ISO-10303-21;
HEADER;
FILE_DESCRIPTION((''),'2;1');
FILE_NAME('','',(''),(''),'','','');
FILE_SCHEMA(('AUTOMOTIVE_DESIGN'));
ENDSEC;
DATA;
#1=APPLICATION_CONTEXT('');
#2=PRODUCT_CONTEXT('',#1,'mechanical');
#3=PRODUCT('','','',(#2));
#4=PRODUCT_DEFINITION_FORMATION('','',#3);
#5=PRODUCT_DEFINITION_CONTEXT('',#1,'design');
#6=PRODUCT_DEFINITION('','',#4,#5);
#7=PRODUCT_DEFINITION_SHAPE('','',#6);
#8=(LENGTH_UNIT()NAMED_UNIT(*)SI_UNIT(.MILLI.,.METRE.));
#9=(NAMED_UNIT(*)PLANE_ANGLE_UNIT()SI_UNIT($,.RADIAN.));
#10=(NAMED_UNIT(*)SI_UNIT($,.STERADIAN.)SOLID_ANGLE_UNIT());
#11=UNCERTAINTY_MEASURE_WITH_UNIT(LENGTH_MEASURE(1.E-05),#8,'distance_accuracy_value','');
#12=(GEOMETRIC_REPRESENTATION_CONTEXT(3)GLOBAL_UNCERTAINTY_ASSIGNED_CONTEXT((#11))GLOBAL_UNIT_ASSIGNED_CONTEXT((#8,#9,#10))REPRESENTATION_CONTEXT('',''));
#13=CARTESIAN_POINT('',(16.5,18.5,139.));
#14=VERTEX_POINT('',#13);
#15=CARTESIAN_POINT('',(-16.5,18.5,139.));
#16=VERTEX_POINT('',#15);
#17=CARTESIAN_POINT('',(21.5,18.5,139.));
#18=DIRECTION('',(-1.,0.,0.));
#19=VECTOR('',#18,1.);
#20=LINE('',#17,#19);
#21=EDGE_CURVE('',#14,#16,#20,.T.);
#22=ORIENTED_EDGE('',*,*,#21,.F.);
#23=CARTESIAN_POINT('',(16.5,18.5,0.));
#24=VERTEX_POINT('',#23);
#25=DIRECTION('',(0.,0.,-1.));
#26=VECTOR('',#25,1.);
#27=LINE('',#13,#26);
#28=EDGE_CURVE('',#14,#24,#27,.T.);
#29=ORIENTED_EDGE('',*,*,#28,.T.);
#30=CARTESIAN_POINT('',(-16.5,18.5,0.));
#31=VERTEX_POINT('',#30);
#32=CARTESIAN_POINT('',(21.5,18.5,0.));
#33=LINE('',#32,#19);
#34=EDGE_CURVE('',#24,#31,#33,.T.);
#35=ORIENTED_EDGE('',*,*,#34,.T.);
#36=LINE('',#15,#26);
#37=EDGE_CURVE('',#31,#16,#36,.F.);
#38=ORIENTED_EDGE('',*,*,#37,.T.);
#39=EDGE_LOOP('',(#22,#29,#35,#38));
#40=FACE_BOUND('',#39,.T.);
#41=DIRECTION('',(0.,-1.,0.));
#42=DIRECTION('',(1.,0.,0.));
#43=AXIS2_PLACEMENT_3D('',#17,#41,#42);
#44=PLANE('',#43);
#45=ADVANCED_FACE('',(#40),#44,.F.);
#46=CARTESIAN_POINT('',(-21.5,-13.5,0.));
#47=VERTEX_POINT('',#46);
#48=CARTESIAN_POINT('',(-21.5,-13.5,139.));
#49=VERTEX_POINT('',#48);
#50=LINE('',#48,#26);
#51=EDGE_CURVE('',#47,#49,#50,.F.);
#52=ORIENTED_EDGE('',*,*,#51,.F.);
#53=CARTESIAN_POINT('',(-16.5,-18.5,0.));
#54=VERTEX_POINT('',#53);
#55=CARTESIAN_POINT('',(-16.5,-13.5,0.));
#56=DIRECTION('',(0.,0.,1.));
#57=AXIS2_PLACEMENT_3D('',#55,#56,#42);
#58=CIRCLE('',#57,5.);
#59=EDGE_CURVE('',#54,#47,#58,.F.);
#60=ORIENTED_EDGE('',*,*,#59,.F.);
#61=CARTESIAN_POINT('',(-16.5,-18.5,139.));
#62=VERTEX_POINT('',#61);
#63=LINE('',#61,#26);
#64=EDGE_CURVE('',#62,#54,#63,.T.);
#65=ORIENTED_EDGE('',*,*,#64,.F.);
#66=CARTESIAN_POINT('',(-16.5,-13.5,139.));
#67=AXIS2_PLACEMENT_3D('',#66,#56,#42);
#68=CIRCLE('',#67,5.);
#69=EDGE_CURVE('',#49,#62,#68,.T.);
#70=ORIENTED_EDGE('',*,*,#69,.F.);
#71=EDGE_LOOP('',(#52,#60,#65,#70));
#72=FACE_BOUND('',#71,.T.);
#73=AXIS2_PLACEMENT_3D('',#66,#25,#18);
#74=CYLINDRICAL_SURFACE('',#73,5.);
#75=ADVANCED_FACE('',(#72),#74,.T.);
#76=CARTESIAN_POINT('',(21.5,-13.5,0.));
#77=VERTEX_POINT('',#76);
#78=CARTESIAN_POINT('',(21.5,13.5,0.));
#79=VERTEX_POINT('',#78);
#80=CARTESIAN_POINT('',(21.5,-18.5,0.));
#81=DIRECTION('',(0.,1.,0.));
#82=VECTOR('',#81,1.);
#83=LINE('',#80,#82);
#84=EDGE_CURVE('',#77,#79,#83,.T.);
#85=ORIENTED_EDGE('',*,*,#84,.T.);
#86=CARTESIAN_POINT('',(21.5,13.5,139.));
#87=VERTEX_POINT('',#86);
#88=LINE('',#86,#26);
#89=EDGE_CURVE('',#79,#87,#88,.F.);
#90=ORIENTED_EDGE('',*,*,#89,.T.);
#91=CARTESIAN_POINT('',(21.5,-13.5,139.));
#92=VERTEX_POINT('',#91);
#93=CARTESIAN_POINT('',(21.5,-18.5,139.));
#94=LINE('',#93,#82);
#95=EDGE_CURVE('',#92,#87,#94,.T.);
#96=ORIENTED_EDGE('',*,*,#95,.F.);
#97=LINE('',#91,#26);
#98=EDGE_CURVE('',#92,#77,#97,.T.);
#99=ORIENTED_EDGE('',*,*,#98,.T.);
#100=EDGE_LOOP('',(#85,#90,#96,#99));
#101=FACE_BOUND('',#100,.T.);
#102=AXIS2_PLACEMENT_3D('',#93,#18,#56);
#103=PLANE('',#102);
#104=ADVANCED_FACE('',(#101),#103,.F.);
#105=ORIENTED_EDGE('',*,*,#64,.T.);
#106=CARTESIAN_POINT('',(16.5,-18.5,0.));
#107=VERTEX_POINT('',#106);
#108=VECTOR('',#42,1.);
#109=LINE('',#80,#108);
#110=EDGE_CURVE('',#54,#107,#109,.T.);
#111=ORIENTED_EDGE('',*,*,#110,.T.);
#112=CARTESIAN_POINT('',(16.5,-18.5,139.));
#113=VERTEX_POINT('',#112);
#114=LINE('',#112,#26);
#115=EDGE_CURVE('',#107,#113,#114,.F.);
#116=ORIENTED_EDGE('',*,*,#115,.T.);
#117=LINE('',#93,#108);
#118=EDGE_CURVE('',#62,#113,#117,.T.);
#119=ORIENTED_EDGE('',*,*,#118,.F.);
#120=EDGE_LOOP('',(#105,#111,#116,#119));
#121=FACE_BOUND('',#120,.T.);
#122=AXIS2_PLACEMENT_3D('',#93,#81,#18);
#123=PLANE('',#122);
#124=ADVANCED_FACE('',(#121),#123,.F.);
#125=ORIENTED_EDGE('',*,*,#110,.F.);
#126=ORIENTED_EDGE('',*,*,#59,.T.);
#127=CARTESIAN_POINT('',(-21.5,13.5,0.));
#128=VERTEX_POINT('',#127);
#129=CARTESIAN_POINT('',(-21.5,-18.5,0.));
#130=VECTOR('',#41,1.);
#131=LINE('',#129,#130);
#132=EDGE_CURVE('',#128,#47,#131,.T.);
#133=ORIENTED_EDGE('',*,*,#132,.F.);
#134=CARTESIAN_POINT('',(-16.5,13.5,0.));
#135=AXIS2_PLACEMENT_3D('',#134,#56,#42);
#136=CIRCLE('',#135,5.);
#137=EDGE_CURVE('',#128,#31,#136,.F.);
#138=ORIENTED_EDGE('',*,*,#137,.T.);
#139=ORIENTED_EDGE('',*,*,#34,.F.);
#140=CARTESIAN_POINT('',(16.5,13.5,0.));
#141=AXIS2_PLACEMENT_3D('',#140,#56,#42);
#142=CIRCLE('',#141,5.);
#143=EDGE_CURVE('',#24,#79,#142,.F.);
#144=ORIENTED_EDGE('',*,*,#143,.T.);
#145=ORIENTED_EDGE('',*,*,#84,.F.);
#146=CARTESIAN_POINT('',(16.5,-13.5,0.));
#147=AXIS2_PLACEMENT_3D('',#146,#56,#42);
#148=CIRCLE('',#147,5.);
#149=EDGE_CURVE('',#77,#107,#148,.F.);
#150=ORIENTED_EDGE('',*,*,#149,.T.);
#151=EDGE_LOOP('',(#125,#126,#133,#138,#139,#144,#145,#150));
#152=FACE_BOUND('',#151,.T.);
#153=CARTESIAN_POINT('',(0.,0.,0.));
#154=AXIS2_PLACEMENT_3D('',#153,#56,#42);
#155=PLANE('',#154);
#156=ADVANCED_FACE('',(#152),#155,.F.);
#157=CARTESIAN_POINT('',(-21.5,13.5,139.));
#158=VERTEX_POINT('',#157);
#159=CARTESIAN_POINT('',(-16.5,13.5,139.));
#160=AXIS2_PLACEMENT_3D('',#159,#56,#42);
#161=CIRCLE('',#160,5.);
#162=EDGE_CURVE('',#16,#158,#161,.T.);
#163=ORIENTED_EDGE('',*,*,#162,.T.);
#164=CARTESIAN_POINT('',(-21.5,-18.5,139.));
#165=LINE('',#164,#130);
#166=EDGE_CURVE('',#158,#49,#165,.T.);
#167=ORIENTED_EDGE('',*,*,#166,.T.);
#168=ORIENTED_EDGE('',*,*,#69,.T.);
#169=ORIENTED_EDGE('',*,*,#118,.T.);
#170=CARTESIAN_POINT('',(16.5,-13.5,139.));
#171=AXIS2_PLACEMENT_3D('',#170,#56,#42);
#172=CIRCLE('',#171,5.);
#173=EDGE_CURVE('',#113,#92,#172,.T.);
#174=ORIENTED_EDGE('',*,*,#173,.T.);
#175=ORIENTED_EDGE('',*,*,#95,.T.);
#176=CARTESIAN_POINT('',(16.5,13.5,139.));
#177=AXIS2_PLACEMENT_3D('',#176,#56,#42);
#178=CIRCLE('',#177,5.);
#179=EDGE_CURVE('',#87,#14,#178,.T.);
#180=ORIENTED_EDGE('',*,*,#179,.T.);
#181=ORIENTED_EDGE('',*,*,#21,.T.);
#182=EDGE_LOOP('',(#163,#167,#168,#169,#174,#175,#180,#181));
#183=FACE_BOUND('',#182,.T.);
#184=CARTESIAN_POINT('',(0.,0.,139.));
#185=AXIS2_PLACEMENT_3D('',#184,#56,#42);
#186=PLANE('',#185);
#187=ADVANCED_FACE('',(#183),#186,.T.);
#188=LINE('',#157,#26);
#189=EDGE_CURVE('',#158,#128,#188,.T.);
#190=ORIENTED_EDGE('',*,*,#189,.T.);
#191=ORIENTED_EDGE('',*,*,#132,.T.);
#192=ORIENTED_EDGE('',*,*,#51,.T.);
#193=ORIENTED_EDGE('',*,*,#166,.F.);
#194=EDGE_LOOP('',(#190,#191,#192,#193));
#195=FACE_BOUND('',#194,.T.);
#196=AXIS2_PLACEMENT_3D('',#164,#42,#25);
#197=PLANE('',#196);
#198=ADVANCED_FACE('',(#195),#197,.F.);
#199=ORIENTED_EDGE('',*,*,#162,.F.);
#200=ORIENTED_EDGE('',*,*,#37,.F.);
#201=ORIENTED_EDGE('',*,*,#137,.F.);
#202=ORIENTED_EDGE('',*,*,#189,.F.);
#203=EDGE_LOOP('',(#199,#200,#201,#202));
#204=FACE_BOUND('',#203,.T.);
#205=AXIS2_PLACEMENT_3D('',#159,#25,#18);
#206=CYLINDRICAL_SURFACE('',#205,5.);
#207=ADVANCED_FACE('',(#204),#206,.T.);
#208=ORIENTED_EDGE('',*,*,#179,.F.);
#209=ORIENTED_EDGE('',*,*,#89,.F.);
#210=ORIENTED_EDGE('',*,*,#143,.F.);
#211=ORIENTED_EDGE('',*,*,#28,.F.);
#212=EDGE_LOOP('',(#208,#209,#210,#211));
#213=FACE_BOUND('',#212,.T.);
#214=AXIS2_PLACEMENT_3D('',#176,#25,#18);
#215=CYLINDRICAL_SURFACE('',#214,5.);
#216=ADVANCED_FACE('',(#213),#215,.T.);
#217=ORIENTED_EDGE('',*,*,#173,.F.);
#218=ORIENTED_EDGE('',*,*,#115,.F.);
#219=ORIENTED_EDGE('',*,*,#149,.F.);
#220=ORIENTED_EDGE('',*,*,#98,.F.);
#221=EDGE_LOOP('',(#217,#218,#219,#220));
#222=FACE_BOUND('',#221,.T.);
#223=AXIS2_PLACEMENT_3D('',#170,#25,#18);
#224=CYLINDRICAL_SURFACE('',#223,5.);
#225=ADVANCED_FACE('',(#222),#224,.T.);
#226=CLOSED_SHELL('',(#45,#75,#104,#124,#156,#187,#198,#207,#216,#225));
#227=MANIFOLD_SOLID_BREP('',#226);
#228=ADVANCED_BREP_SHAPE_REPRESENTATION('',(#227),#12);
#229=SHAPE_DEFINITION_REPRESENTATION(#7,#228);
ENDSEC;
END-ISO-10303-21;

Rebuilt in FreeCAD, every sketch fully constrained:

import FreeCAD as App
import Part
import Sketcher


def edges_at(feature, points):
    """Names of the edges that pass closest to the given points."""
    edges = feature.Shape.Edges
    near = lambda p: min(range(len(edges)), key=lambda i: edges[i].distToShape(Part.Vertex(*p))[0])
    return sorted({f"Edge{near(p) + 1}" for p in points})

doc = App.newDocument("Part")
params = doc.addObject("Spreadsheet::Sheet", "Params")
for row, (alias, value) in enumerate([
    ("sketch1_width", "43 mm"),
    ("sketch1_height", "37 mm"),
    ("pad1_length", "139 mm"),
    ("fillet_radius", "5 mm"),
], start=1):
    params.set(f"A{row}", alias)
    params.set(f"B{row}", "=" + value)
    params.setAlias(f"B{row}", alias)

body = doc.addObject("PartDesign::Body", "Body")

sketch1 = doc.addObject("Sketcher::SketchObject", "Sketch")
body.addObject(sketch1)
sketch1.AttachmentSupport = (doc.XY_Plane, [""])
sketch1.MapMode = "FlatFace"
sketch1.addGeometry(Part.LineSegment(App.Vector(-22, 18, 0), App.Vector(-22, -18, 0)), False)
sketch1.addGeometry(Part.LineSegment(App.Vector(-22, -18, 0), App.Vector(22, -18, 0)), False)
sketch1.addGeometry(Part.LineSegment(App.Vector(22, -18, 0), App.Vector(22, 18, 0)), False)
sketch1.addGeometry(Part.LineSegment(App.Vector(22, 18, 0), App.Vector(-22, 18, 0)), False)
sketch1.addConstraint(Sketcher.Constraint("Coincident", 0, 2, 1, 1))
sketch1.addConstraint(Sketcher.Constraint("Coincident", 1, 2, 2, 1))
sketch1.addConstraint(Sketcher.Constraint("Coincident", 2, 2, 3, 1))
sketch1.addConstraint(Sketcher.Constraint("Coincident", 3, 2, 0, 1))
sketch1.addConstraint(Sketcher.Constraint("Vertical", 0))
sketch1.addConstraint(Sketcher.Constraint("Horizontal", 1))
sketch1.addConstraint(Sketcher.Constraint("Vertical", 2))
sketch1.addConstraint(Sketcher.Constraint("Horizontal", 3))
sketch1.addConstraint(Sketcher.Constraint("Symmetric", 0, 2, 2, 2, -1, 1))
sketch1.addConstraint(Sketcher.Constraint("DistanceX", 1, 1, 1, 2, 43.0))
sketch1.addConstraint(Sketcher.Constraint("DistanceY", 0, 2, 0, 1, 37.0))
sketch1.setExpression("Constraints[9]", "Params.sketch1_width")
sketch1.setExpression("Constraints[10]", "Params.sketch1_height")
pad1 = doc.addObject("PartDesign::Pad", "Pad")
body.addObject(pad1)
pad1.Profile = sketch1
pad1.setExpression("Length", "Params.pad1_length")
doc.recompute()

fillet = doc.addObject("PartDesign::Fillet", "Fillet")
body.addObject(fillet)
fillet.Base = (pad1, edges_at(pad1, [
    (-21.5, 18.5, 69.5),
    (21.5, 18.5, 69.5),
    (21.5, -18.5, 69.5),
    (-21.5, -18.5, 69.5),
]))
fillet.setExpression("Radius", "Params.fillet_radius")

doc.recompute()
